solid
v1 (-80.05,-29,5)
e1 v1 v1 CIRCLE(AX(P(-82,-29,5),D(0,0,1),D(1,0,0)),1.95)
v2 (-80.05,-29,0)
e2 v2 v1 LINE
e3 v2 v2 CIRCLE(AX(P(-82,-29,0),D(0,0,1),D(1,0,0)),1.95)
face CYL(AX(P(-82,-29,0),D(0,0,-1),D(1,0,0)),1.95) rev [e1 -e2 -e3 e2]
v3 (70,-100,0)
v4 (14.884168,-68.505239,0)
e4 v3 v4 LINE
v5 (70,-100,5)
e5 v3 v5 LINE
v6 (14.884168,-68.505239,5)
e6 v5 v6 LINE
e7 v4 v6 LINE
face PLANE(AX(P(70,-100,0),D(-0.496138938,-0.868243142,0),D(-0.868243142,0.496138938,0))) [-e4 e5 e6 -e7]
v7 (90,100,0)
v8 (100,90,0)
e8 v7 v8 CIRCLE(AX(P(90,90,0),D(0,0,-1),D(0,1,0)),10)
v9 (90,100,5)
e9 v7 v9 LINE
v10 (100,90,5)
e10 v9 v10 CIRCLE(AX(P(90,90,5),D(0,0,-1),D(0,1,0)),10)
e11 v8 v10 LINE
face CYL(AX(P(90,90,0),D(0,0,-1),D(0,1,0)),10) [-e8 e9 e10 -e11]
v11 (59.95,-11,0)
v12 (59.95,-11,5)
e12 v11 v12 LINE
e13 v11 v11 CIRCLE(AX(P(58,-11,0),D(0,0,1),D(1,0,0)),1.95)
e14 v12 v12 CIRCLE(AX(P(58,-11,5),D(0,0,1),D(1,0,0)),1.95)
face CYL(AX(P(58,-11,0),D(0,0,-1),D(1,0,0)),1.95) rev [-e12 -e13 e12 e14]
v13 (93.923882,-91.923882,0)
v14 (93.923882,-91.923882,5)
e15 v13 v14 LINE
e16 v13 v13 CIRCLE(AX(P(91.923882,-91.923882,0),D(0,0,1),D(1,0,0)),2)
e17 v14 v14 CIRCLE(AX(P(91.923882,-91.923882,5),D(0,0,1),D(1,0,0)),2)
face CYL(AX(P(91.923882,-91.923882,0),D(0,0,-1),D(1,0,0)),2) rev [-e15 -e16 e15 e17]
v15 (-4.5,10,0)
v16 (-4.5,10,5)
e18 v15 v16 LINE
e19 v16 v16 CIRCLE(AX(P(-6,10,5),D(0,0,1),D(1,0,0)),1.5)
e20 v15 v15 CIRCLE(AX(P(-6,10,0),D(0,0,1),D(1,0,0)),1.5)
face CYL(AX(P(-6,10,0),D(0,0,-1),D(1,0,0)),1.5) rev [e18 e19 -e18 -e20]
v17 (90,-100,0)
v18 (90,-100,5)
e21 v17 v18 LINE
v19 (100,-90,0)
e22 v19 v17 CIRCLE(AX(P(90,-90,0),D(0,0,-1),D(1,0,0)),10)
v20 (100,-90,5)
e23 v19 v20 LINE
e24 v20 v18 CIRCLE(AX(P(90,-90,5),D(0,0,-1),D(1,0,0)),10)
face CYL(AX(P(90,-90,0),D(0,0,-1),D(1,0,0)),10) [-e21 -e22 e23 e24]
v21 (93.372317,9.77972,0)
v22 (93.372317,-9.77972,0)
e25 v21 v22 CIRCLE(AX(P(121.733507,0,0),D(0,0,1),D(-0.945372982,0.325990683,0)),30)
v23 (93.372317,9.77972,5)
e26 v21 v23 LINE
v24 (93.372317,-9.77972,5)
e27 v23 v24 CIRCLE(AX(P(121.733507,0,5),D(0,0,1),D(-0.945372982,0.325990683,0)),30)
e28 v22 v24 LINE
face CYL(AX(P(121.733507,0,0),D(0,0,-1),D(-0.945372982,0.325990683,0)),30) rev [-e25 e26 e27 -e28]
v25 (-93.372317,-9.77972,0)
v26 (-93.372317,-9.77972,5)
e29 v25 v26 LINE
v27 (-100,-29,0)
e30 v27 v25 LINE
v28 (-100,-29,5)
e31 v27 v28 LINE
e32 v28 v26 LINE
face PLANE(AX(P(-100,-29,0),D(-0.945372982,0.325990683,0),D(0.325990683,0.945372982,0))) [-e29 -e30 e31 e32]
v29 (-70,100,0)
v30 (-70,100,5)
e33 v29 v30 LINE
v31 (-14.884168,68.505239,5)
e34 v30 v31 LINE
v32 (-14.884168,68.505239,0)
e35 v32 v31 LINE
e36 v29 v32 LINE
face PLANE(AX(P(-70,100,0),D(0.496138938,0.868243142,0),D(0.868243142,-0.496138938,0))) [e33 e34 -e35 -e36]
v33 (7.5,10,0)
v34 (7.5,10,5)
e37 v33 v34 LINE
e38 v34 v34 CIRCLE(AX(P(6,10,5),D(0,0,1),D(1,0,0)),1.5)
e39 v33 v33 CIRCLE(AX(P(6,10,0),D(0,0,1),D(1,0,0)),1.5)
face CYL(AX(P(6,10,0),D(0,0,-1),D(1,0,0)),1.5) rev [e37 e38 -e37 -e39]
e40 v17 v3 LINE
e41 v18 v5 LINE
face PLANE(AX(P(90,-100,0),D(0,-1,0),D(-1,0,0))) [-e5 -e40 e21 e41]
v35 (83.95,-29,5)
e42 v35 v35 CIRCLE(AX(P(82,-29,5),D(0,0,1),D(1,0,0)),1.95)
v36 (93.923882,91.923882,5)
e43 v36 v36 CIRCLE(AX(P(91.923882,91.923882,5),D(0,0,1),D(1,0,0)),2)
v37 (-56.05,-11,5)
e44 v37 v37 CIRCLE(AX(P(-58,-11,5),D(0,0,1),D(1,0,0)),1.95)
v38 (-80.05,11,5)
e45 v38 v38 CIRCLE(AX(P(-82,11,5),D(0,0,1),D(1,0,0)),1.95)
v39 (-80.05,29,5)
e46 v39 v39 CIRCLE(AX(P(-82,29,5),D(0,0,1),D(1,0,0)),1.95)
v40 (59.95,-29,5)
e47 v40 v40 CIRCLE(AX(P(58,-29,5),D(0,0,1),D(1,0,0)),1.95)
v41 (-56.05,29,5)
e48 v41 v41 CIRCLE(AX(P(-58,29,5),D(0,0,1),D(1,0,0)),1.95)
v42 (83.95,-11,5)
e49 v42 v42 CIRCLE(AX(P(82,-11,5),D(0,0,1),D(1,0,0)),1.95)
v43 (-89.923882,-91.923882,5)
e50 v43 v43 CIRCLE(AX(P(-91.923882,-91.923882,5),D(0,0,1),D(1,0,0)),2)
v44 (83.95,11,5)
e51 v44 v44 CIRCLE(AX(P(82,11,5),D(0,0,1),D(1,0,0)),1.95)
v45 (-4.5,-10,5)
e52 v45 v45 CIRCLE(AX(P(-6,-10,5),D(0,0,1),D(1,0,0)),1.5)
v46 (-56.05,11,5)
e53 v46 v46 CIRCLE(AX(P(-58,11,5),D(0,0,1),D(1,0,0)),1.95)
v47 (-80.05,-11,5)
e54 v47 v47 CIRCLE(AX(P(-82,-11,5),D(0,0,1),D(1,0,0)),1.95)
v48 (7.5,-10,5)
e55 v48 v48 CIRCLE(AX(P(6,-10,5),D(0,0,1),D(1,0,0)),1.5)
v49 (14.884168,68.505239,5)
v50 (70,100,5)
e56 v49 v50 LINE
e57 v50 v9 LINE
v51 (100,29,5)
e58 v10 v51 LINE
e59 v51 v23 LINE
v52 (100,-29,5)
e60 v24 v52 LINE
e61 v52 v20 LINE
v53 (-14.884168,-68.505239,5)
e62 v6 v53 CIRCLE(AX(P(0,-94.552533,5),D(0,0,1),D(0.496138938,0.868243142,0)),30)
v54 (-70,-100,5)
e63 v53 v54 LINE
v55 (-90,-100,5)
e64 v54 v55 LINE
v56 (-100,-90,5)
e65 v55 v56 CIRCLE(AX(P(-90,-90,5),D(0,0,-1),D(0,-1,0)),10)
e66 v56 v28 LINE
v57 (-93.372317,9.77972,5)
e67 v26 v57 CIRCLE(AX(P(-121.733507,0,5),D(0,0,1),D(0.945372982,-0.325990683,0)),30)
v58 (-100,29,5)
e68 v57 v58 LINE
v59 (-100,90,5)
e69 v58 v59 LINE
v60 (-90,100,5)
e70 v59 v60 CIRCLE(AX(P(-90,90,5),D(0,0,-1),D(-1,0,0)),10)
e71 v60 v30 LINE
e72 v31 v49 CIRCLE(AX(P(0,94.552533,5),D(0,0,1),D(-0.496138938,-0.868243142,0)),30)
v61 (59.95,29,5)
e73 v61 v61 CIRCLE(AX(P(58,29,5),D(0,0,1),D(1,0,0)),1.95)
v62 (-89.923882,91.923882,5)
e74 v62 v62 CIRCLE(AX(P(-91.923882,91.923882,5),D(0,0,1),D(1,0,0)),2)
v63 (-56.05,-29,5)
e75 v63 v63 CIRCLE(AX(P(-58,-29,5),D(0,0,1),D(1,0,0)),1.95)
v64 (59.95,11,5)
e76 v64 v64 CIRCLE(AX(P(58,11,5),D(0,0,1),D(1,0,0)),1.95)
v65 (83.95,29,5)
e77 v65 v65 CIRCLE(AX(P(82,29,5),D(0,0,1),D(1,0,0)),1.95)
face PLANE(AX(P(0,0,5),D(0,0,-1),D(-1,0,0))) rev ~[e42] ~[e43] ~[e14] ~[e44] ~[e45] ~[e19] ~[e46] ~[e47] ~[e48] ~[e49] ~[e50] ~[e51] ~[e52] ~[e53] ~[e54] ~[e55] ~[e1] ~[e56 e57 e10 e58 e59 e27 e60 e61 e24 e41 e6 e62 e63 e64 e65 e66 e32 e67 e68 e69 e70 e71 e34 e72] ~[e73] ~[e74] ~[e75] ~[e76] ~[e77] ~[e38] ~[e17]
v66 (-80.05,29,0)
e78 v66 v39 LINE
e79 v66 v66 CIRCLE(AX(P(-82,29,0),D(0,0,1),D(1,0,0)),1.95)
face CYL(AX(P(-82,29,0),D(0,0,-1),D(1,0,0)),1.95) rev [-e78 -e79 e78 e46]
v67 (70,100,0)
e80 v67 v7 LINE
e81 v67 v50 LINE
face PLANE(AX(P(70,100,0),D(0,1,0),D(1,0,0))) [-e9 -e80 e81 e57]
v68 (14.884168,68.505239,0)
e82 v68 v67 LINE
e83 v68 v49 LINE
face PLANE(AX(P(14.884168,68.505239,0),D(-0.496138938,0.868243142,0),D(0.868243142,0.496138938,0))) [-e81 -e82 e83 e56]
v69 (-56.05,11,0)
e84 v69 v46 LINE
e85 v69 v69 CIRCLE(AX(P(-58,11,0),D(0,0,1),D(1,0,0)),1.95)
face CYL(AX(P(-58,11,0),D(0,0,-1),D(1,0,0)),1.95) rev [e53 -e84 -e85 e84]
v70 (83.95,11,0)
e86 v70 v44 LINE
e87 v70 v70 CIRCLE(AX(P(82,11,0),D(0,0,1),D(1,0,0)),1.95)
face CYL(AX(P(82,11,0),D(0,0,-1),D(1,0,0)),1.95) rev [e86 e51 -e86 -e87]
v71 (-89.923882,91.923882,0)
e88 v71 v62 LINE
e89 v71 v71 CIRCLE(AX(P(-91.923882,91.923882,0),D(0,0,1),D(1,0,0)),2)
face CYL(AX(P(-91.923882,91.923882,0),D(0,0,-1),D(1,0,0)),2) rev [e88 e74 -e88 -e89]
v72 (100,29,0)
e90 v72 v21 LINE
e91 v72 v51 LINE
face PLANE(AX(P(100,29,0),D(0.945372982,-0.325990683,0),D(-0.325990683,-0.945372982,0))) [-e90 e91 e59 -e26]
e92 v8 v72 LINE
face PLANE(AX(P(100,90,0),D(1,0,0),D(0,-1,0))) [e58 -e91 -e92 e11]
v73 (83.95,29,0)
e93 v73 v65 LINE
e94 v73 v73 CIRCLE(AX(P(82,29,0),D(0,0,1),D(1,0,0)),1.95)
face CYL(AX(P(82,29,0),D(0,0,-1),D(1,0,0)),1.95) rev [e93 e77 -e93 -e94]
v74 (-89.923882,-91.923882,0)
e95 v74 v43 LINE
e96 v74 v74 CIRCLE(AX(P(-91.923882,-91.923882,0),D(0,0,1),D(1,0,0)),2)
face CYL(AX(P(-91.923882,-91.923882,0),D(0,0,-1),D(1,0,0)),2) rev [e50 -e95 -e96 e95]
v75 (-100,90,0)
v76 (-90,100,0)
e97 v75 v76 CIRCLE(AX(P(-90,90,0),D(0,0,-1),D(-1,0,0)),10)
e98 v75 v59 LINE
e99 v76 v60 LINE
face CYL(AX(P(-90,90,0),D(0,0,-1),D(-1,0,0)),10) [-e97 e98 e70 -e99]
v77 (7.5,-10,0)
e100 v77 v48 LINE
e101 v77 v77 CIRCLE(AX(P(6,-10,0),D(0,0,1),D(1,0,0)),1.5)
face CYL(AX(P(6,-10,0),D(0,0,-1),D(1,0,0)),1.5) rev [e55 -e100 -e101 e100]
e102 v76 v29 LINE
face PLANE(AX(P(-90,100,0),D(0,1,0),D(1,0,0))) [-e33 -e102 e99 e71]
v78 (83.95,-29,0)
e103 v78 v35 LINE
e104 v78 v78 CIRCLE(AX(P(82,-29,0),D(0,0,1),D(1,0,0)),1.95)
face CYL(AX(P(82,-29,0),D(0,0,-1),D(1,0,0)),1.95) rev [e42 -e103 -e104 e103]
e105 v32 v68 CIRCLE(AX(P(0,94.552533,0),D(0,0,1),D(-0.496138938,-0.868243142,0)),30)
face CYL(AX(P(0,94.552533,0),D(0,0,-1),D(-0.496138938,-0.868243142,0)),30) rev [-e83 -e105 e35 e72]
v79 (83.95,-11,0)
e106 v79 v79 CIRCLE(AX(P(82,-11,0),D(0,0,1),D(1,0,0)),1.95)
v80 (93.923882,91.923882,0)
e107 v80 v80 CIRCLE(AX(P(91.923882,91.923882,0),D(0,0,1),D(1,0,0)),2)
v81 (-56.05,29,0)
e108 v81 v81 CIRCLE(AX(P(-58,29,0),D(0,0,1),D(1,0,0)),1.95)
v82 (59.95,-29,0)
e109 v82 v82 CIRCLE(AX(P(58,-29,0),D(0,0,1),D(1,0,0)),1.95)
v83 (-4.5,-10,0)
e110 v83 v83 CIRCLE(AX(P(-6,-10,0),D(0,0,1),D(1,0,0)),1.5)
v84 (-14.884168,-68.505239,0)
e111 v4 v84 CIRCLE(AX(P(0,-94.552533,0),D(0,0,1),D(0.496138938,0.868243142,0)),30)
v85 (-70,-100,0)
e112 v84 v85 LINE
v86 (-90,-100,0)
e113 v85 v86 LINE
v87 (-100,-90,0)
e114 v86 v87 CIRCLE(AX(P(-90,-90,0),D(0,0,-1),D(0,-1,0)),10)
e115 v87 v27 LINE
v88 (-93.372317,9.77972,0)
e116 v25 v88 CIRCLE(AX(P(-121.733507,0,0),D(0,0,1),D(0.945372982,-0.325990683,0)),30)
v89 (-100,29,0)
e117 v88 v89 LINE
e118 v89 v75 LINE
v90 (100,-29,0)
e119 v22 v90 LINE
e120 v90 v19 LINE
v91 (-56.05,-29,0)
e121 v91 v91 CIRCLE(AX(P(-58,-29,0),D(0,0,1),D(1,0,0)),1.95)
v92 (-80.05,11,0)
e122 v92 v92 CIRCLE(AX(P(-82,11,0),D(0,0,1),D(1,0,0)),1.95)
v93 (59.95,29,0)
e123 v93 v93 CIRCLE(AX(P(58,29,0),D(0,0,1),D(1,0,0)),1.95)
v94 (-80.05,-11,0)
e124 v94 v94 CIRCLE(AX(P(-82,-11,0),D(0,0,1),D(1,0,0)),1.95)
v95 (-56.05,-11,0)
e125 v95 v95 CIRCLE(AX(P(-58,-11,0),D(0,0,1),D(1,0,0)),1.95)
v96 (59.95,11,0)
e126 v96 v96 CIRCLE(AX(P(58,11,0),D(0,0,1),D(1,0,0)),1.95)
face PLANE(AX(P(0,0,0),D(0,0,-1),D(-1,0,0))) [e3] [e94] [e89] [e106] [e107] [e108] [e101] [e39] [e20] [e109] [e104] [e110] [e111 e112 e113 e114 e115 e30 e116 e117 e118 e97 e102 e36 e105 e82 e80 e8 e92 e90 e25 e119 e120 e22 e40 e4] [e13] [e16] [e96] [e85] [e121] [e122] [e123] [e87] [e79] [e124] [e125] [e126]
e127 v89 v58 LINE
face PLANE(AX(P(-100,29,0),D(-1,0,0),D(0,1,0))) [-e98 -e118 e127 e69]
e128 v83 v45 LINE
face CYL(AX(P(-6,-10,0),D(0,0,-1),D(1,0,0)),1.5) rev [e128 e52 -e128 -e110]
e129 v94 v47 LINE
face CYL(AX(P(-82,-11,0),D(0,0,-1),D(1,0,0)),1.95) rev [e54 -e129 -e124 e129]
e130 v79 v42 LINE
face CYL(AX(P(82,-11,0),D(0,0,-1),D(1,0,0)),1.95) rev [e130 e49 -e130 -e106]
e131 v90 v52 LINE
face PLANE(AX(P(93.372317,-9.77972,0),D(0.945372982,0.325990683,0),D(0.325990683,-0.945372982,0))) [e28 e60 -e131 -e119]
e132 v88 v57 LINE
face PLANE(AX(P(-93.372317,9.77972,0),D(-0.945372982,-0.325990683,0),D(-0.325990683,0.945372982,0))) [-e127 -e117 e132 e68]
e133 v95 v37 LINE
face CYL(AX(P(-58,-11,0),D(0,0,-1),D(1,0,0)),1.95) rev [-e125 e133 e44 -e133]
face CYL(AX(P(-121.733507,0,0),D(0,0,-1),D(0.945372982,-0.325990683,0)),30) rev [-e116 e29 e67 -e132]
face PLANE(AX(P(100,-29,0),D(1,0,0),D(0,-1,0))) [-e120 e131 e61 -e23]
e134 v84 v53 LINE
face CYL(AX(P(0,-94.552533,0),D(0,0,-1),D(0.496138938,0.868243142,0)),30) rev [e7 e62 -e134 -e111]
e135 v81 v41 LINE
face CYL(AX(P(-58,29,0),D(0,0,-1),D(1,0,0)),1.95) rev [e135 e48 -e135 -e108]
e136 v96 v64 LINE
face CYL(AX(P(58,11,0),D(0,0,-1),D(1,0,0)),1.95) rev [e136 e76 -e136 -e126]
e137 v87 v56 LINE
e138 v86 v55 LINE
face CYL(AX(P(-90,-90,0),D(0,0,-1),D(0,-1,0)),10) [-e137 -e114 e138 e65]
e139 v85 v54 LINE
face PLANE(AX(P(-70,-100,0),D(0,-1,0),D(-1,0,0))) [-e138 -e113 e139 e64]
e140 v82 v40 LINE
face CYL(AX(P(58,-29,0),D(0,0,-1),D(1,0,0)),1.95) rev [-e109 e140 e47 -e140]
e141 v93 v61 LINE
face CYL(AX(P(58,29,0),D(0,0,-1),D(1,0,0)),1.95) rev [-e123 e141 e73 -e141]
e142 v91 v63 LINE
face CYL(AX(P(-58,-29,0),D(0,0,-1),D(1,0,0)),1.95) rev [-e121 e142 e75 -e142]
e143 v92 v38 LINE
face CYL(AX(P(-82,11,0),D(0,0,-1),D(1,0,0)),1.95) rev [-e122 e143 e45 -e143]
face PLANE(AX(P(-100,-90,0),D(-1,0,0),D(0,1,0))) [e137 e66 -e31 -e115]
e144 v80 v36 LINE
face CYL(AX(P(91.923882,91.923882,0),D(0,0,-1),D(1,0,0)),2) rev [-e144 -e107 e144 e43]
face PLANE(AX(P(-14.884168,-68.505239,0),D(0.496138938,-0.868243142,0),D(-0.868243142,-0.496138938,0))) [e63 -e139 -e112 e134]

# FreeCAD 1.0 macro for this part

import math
import FreeCAD as App
import Part
import Sketcher
from FreeCAD import Vector

doc = App.newDocument("Part")
body = doc.addObject("PartDesign::Body", "Body")

# Sketch on XY plane
sketch1 = body.newObject("Sketcher::SketchObject", "Sketch")
sketch1.AttachmentSupport = (doc.getObject("XY_Plane"), [""])
sketch1.MapMode = "FlatFace"
sketch1.addGeometry([
    Part.LineSegment(Vector(-70, 100, 0), Vector(-90, 100, 0)),  # 0
    Part.ArcOfCircle(Part.Circle(Vector(-90, 90, 0), Vector(0, 0, 1), 10), math.radians(90), math.radians(180)),  # 1
    Part.LineSegment(Vector(-100, 90, 0), Vector(-100, 29, 0)),  # 2
    Part.LineSegment(Vector(-100, 29, 0), Vector(-93.4, 9.8, 0)),  # 3
    Part.ArcOfCircle(Part.Circle(Vector(-121.7, 0, 0), Vector(0, 0, 1), 30), math.radians(-19), math.radians(19)),  # 4
    Part.LineSegment(Vector(-93.4, -9.8, 0), Vector(-100, -29, 0)),  # 5
    Part.LineSegment(Vector(-100, -29, 0), Vector(-100, -90, 0)),  # 6
    Part.ArcOfCircle(Part.Circle(Vector(-90, -90, 0), Vector(0, 0, 1), 10), math.radians(180), math.radians(270)),  # 7
    Part.LineSegment(Vector(-90, -100, 0), Vector(-70, -100, 0)),  # 8
    Part.LineSegment(Vector(-70, -100, 0), Vector(-14.9, -68.5, 0)),  # 9
    Part.ArcOfCircle(Part.Circle(Vector(0, -94.6, 0), Vector(0, 0, 1), 30), math.radians(60), math.radians(120)),  # 10
    Part.LineSegment(Vector(14.9, -68.5, 0), Vector(70, -100, 0)),  # 11
    Part.LineSegment(Vector(70, -100, 0), Vector(90, -100, 0)),  # 12
    Part.ArcOfCircle(Part.Circle(Vector(90, -90, 0), Vector(0, 0, 1), 10), math.radians(-90), math.radians(0)),  # 13
    Part.LineSegment(Vector(100, -90, 0), Vector(100, -29, 0)),  # 14
    Part.LineSegment(Vector(100, -29, 0), Vector(93.4, -9.8, 0)),  # 15
    Part.ArcOfCircle(Part.Circle(Vector(121.7, 0, 0), Vector(0, 0, 1), 30), math.radians(161), math.radians(199)),  # 16
    Part.LineSegment(Vector(93.4, 9.8, 0), Vector(100, 29, 0)),  # 17
    Part.LineSegment(Vector(100, 29, 0), Vector(100, 90, 0)),  # 18
    Part.ArcOfCircle(Part.Circle(Vector(90, 90, 0), Vector(0, 0, 1), 10), math.radians(0), math.radians(90)),  # 19
    Part.LineSegment(Vector(90, 100, 0), Vector(70, 100, 0)),  # 20
    Part.LineSegment(Vector(70, 100, 0), Vector(14.9, 68.5, 0)),  # 21
    Part.ArcOfCircle(Part.Circle(Vector(0, 94.6, 0), Vector(0, 0, 1), 30), math.radians(-120), math.radians(-60)),  # 22
    Part.LineSegment(Vector(-14.9, 68.5, 0), Vector(-70, 100, 0)),  # 23
    Part.Circle(Vector(91.9, -91.9, 0), Vector(0, 0, 1), 2),  # 24
    Part.Circle(Vector(82, -29, 0), Vector(0, 0, 1), 1.9),  # 25
    Part.Circle(Vector(58, -29, 0), Vector(0, 0, 1), 1.9),  # 26
    Part.Circle(Vector(82, -11, 0), Vector(0, 0, 1), 1.9),  # 27
    Part.Circle(Vector(58, -11, 0), Vector(0, 0, 1), 1.9),  # 28
    Part.Circle(Vector(6, -10, 0), Vector(0, 0, 1), 1.5),  # 29
    Part.Circle(Vector(-91.9, -91.9, 0), Vector(0, 0, 1), 2),  # 30
    Part.Circle(Vector(-6, -10, 0), Vector(0, 0, 1), 1.5),  # 31
    Part.Circle(Vector(-58, -29, 0), Vector(0, 0, 1), 1.9),  # 32
    Part.Circle(Vector(-82, -29, 0), Vector(0, 0, 1), 1.9),  # 33
    Part.Circle(Vector(-58, -11, 0), Vector(0, 0, 1), 1.9),  # 34
    Part.Circle(Vector(-82, -11, 0), Vector(0, 0, 1), 1.9),  # 35
    Part.Circle(Vector(82, 11, 0), Vector(0, 0, 1), 1.9),  # 36
    Part.Circle(Vector(58, 11, 0), Vector(0, 0, 1), 1.9),  # 37
    Part.Circle(Vector(82, 29, 0), Vector(0, 0, 1), 1.9),  # 38
    Part.Circle(Vector(58, 29, 0), Vector(0, 0, 1), 1.9),  # 39
    Part.Circle(Vector(6, 10, 0), Vector(0, 0, 1), 1.5),  # 40
    Part.Circle(Vector(91.9, 91.9, 0), Vector(0, 0, 1), 2),  # 41
    Part.Circle(Vector(-6, 10, 0), Vector(0, 0, 1), 1.5),  # 42
    Part.Circle(Vector(-58, 11, 0), Vector(0, 0, 1), 1.9),  # 43
    Part.Circle(Vector(-82, 11, 0), Vector(0, 0, 1), 1.9),  # 44
    Part.Circle(Vector(-58, 29, 0), Vector(0, 0, 1), 1.9),  # 45
    Part.Circle(Vector(-82, 29, 0), Vector(0, 0, 1), 1.9),  # 46
    Part.Circle(Vector(-91.9, 91.9, 0), Vector(0, 0, 1), 2),  # 47
], False)
sketch1.addConstraint([
    Sketcher.Constraint("Tangent", 0, 2, 1, 1),
    Sketcher.Constraint("Tangent", 1, 2, 2, 1),
    Sketcher.Constraint("Coincident", 2, 2, 3, 1),
    Sketcher.Constraint("Tangent", 3, 2, 4, 2),
    Sketcher.Constraint("Tangent", 4, 1, 5, 1),
    Sketcher.Constraint("Coincident", 5, 2, 6, 1),
    Sketcher.Constraint("Tangent", 6, 2, 7, 1),
    Sketcher.Constraint("Tangent", 7, 2, 8, 1),
    Sketcher.Constraint("Coincident", 8, 2, 9, 1),
    Sketcher.Constraint("Tangent", 9, 2, 10, 2),
    Sketcher.Constraint("Tangent", 10, 1, 11, 1),
    Sketcher.Constraint("Coincident", 11, 2, 12, 1),
    Sketcher.Constraint("Tangent", 12, 2, 13, 1),
    Sketcher.Constraint("Tangent", 13, 2, 14, 1),
    Sketcher.Constraint("Coincident", 14, 2, 15, 1),
    Sketcher.Constraint("Tangent", 15, 2, 16, 2),
    Sketcher.Constraint("Tangent", 16, 1, 17, 1),
    Sketcher.Constraint("Coincident", 17, 2, 18, 1),
    Sketcher.Constraint("Tangent", 18, 2, 19, 1),
    Sketcher.Constraint("Tangent", 19, 2, 20, 1),
    Sketcher.Constraint("Coincident", 20, 2, 21, 1),
    Sketcher.Constraint("Tangent", 21, 2, 22, 2),
    Sketcher.Constraint("Tangent", 22, 1, 23, 1),
    Sketcher.Constraint("Coincident", 23, 2, 0, 1),
    Sketcher.Constraint("Horizontal", 0),
    Sketcher.Constraint("Vertical", 2),
    Sketcher.Constraint("Vertical", 6),
    Sketcher.Constraint("Horizontal", 8),
    Sketcher.Constraint("Horizontal", 12),
    Sketcher.Constraint("Vertical", 14),
    Sketcher.Constraint("Vertical", 18),
    Sketcher.Constraint("Horizontal", 20),
    Sketcher.Constraint("Equal", 1, 7),
    Sketcher.Constraint("Equal", 4, 10),
    Sketcher.Constraint("Equal", 7, 13),
    Sketcher.Constraint("Equal", 10, 16),
    Sketcher.Constraint("Equal", 13, 19),
    Sketcher.Constraint("Equal", 16, 22),
    Sketcher.Constraint("Equal", 25, 26),
    Sketcher.Constraint("Equal", 26, 27),
    Sketcher.Constraint("Equal", 27, 28),
    Sketcher.Constraint("Equal", 24, 30),
    Sketcher.Constraint("Equal", 29, 31),
    Sketcher.Constraint("Equal", 28, 32),
    Sketcher.Constraint("Equal", 32, 33),
    Sketcher.Constraint("Equal", 33, 34),
    Sketcher.Constraint("Equal", 34, 35),
    Sketcher.Constraint("Equal", 35, 36),
    Sketcher.Constraint("Equal", 36, 37),
    Sketcher.Constraint("Equal", 37, 38),
    Sketcher.Constraint("Equal", 38, 39),
    Sketcher.Constraint("Equal", 31, 40),
    Sketcher.Constraint("Equal", 30, 41),
    Sketcher.Constraint("Equal", 40, 42),
    Sketcher.Constraint("Equal", 39, 43),
    Sketcher.Constraint("Equal", 43, 44),
    Sketcher.Constraint("Equal", 44, 45),
    Sketcher.Constraint("Equal", 45, 46),
    Sketcher.Constraint("Equal", 41, 47),
    Sketcher.Constraint("Symmetric", 1, 3, 13, 3, -1, 1),
    Sketcher.Constraint("Symmetric", 4, 3, 16, 3, -1, 1),
    Sketcher.Constraint("Symmetric", 7, 3, 19, 3, -1, 1),
    Sketcher.Constraint("Symmetric", 10, 3, 22, 3, -1, 1),
    Sketcher.Constraint("Symmetric", 35, 3, 36, 3, -1, 1),
    Sketcher.Constraint("Symmetric", 34, 3, 37, 3, -1, 1),
    Sketcher.Constraint("Symmetric", 33, 3, 38, 3, -1, 1),
    Sketcher.Constraint("Symmetric", 32, 3, 39, 3, -1, 1),
    Sketcher.Constraint("Symmetric", 31, 3, 40, 3, -1, 1),
    Sketcher.Constraint("Symmetric", 30, 3, 41, 3, -1, 1),
    Sketcher.Constraint("Symmetric", 29, 3, 42, 3, -1, 1),
    Sketcher.Constraint("Symmetric", 28, 3, 43, 3, -1, 1),
    Sketcher.Constraint("Symmetric", 27, 3, 44, 3, -1, 1),
    Sketcher.Constraint("Symmetric", 26, 3, 45, 3, -1, 1),
    Sketcher.Constraint("Symmetric", 25, 3, 46, 3, -1, 1),
    Sketcher.Constraint("Symmetric", 24, 3, 47, 3, -1, 1),
    Sketcher.Constraint("Symmetric", 7, 3, 13, 3, -2),
    Sketcher.Constraint("Symmetric", 24, 3, 30, 3, -2),
    Sketcher.Constraint("Symmetric", 29, 3, 31, 3, -2),
    Sketcher.Constraint("Symmetric", 26, 3, 32, 3, -2),
    Sketcher.Constraint("Symmetric", 25, 3, 33, 3, -2),
    Sketcher.Constraint("Symmetric", 28, 3, 34, 3, -2),
    Sketcher.Constraint("Symmetric", 27, 3, 35, 3, -2),
    Sketcher.Constraint("Symmetric", 9, 2, 10, 1, -2),
    Sketcher.Constraint("Symmetric", 4, 1, 15, 2, -2),
    Sketcher.Constraint("Parallel", 3, 15),
    Sketcher.Constraint("Parallel", 5, 17),
    Sketcher.Constraint("Parallel", 9, 21),
    Sketcher.Constraint("Parallel", 11, 23),
    Sketcher.Constraint("Horizontal", 25, 3, 26, 3),
    Sketcher.Constraint("Horizontal", 27, 3, 28, 3),
    Sketcher.Constraint("Horizontal", 46, 3, 2, 2),
    Sketcher.Constraint("Vertical", 25, 3, 27, 3),
    Sketcher.Constraint("Vertical", 26, 3, 28, 3),
    Sketcher.Constraint("Diameter", 24, 4.0),
    Sketcher.Constraint("Diameter", 29, 3.0),
    Sketcher.Constraint("Radius", 1, 10.0),
    Sketcher.Constraint("Radius", 4, 30.0),
    Sketcher.Constraint("Diameter", 25, 3.9),
    Sketcher.Constraint("DistanceX", 0, 2, 0, 1, 20.0),
    Sketcher.Constraint("DistanceY", 2, 2, 2, 1, 61.0),
    Sketcher.Constraint("DistanceX", 1, 3, -1, 1, 90.0),
    Sketcher.Constraint("DistanceY", -1, 1, 1, 3, 90.0),
    Sketcher.Constraint("DistanceX", -1, 1, 25, 3, 82.0),
    Sketcher.Constraint("DistanceX", -1, 1, 26, 3, 58.0),
    Sketcher.Constraint("DistanceY", 27, 3, -1, 1, 11.0),
    Sketcher.Constraint("DistanceX", -1, 1, 29, 3, 6.0),
    Sketcher.Constraint("DistanceY", 29, 3, -1, 1, 10.0),
    Sketcher.Constraint("Distance", 9, 63.47972),
    Sketcher.Constraint("DistanceX", -1, 1, 24, 3, 91.923882),
    Sketcher.Constraint("DistanceY", 24, 3, -1, 1, 91.923882),
    Sketcher.Constraint("DistanceY", -1, 1, 3, 2, 9.77972),
])
pad1 = body.newObject("PartDesign::Pad", "Pad")
pad1.Profile = sketch1
pad1.Length = 5

doc.recompute()
